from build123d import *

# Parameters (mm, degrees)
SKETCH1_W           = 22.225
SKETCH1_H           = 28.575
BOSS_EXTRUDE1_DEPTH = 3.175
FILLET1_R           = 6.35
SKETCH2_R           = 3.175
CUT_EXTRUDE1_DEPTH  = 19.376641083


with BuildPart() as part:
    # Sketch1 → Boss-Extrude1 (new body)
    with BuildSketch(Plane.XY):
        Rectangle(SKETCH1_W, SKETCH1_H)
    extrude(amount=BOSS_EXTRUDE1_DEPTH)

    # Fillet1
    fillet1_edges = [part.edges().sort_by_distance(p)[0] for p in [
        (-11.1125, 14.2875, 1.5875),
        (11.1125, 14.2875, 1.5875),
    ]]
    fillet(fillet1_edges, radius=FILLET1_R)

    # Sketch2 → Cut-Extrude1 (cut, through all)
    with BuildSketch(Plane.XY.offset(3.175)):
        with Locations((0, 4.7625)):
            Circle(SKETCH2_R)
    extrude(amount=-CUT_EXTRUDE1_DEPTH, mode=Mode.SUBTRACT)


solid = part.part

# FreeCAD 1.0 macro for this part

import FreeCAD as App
import Part
import Sketcher

V = App.Vector
Q = App.Units.Quantity


def edges_at(feature, points):
    """Names of the edges that pass closest to the given points."""
    edges = feature.Shape.Edges
    near = lambda p: min(range(len(edges)), key=lambda i: edges[i].distToShape(Part.Vertex(*p))[0])
    return sorted({f"Edge{near(p) + 1}" for p in points})

doc = App.newDocument("Part")
body = doc.addObject("PartDesign::Body", "Body")

sketch1 = body.newObject("Sketcher::SketchObject", "Sketch")
sketch1.AttachmentSupport = (doc.getObject("XY_Plane"), [""])
sketch1.MapMode = "FlatFace"
sketch1.addGeometry([
    Part.LineSegment(V(-11, 14, 0), V(-11, -14, 0)),
    Part.LineSegment(V(-11, -14, 0), V(11, -14, 0)),
    Part.LineSegment(V(11, -14, 0), V(11, 14, 0)),
    Part.LineSegment(V(11, 14, 0), V(-11, 14, 0)),
], False)
sketch1.addConstraint([
    Sketcher.Constraint("Coincident", 0, 2, 1, 1),
    Sketcher.Constraint("Coincident", 1, 2, 2, 1),
    Sketcher.Constraint("Coincident", 2, 2, 3, 1),
    Sketcher.Constraint("Coincident", 3, 2, 0, 1),
    Sketcher.Constraint("Vertical", 0),
    Sketcher.Constraint("Horizontal", 1),
    Sketcher.Constraint("Vertical", 2),
    Sketcher.Constraint("Horizontal", 3),
    Sketcher.Constraint("Symmetric", 0, 2, 2, 2, -1, 1),
    Sketcher.Constraint("DistanceX", 1, 1, 1, 2, Q("0.875 in")),
    Sketcher.Constraint("DistanceY", 0, 2, 0, 1, Q("1.125 in")),
])
pad1 = body.newObject("PartDesign::Pad", "Pad")
pad1.Profile = sketch1
pad1.Length = Q("0.125 in")
doc.recompute()

fillet = body.newObject("PartDesign::Fillet", "Fillet")
fillet.Base = (pad1, edges_at(pad1, [(-11.113, 14.287, 1.587), (11.113, 14.287, 1.587)]))
fillet.Radius = Q("0.25 in")

sketch2 = body.newObject("Sketcher::SketchObject", "Sketch001")
sketch2.AttachmentSupport = (doc.getObject("XY_Plane"), [""])
sketch2.MapMode = "FlatFace"
sketch2.AttachmentOffset = App.Placement(V(0, 0, 0.125 * 25.4), App.Rotation())
sketch2.addGeometry(Part.Circle(V(0, 4.8, 0), V(0, 0, 1), 3.2), False)
sketch2.addConstraint([
    Sketcher.Constraint("PointOnObject", 0, 3, -2),
    Sketcher.Constraint("Diameter", 0, Q("0.25 in")),
    Sketcher.Constraint("DistanceY", -1, 1, 0, 3, Q("0.1875 in")),
])
pocket1 = body.newObject("PartDesign::Pocket", "Pocket")
pocket1.Profile = sketch2
pocket1.Type = "ThroughAll"

doc.recompute()
